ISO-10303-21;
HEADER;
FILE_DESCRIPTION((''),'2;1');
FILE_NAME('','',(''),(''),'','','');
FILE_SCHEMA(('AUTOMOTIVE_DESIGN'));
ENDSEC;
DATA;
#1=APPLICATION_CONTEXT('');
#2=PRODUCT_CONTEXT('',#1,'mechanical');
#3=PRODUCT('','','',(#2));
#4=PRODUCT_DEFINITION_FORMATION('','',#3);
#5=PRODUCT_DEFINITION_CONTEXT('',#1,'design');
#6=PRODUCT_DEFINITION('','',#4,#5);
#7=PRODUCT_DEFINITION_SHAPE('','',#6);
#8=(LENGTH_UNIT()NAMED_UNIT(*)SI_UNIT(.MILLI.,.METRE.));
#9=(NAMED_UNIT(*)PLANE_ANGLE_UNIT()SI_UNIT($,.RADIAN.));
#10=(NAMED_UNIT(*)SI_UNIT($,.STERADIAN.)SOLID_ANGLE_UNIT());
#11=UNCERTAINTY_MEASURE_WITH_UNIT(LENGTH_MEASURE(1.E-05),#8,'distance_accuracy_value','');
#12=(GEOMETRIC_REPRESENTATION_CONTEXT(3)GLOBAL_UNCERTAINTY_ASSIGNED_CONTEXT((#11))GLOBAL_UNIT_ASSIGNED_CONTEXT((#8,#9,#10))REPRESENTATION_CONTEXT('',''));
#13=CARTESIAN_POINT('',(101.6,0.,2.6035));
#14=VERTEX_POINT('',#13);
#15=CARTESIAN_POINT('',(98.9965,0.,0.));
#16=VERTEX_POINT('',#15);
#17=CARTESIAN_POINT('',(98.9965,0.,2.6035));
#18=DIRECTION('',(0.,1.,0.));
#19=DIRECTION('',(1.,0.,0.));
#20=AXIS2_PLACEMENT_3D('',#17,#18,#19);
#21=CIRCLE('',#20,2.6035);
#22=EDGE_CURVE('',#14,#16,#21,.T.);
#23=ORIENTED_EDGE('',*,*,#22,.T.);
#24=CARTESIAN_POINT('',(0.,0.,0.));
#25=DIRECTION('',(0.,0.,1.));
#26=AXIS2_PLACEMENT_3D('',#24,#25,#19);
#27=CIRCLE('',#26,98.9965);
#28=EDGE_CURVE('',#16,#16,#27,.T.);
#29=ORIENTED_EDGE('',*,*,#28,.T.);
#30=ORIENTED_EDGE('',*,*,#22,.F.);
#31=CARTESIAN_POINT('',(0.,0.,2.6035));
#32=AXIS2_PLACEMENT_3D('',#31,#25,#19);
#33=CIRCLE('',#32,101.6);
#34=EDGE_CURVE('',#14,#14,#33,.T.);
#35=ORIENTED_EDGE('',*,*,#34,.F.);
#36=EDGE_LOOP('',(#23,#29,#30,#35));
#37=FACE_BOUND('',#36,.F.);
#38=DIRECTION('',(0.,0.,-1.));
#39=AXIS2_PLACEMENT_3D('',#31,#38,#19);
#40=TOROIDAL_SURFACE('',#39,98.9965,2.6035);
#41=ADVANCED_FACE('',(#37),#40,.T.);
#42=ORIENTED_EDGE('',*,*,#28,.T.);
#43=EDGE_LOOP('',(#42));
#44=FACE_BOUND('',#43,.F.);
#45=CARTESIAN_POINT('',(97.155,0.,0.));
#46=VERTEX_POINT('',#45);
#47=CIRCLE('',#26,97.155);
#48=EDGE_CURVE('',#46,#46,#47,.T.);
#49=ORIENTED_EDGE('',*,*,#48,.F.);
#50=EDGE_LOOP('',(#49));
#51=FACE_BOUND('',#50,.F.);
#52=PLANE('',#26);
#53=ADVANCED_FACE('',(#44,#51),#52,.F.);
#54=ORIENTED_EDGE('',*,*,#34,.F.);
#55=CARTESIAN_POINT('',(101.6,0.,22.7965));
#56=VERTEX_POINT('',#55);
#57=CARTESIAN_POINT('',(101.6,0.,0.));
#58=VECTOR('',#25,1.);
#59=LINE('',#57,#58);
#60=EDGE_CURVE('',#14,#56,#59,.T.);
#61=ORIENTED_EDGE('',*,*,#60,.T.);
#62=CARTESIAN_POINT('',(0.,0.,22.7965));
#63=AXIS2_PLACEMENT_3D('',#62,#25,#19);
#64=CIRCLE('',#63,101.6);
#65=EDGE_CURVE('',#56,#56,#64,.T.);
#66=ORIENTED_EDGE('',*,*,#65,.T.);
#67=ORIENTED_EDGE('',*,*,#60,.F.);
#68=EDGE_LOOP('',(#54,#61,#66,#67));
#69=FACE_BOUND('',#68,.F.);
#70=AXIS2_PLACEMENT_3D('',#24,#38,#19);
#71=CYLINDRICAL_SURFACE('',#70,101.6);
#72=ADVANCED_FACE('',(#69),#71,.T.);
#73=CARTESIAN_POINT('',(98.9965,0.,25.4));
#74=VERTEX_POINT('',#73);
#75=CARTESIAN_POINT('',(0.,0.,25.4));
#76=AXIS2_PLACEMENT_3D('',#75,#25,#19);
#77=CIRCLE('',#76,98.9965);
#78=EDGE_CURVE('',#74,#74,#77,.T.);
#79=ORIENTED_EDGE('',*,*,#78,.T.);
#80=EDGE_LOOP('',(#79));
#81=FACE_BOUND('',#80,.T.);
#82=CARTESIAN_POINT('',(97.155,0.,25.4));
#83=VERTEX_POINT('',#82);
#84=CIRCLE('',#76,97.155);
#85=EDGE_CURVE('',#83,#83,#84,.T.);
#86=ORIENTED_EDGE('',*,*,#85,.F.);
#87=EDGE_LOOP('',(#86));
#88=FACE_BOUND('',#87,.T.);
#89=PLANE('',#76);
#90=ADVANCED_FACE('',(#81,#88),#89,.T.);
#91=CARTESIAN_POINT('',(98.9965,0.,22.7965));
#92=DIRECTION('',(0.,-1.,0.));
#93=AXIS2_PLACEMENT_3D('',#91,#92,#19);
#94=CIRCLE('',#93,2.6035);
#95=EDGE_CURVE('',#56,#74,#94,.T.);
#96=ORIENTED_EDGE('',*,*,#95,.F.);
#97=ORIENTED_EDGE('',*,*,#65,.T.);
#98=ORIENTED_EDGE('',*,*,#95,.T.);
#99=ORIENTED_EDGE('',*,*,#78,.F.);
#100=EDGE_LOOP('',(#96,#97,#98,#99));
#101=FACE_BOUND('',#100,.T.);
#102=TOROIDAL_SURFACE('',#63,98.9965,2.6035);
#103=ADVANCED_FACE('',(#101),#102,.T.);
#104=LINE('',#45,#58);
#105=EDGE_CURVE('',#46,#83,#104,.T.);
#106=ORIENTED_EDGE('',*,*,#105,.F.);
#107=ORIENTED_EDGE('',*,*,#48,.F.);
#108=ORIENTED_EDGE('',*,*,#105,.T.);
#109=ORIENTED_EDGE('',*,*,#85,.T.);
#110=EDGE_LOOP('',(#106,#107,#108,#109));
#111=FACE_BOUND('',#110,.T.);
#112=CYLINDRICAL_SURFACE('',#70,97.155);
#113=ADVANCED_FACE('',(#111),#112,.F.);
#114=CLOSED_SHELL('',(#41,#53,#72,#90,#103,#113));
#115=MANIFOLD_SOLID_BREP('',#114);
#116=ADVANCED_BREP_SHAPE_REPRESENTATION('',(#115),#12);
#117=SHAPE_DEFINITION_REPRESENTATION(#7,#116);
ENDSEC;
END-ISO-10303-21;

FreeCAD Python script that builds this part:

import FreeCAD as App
import Part
import Sketcher

V = App.Vector
Q = App.Units.Quantity


def edges_at(feature, points):
    """Names of the edges that pass closest to the given points."""
    edges = feature.Shape.Edges
    near = lambda p: min(range(len(edges)), key=lambda i: edges[i].distToShape(Part.Vertex(*p))[0])
    return sorted({f"Edge{near(p) + 1}" for p in points})

doc = App.newDocument("Part")
params = doc.addObject("Spreadsheet::Sheet", "Params")
for row, (alias, value) in enumerate([
    ("sketch1_diameter", "8 in"),
    ("sketch1_diameter2", "7.65 in"),
    ("pad1_length", "1 in"),
    ("fillet_radius", "0.1025 in"),
], start=1):
    params.set(f"A{row}", alias)
    params.set(f"B{row}", "=" + value)
    params.setAlias(f"B{row}", alias)

body = doc.addObject("PartDesign::Body", "Body")

sketch1 = doc.addObject("Sketcher::SketchObject", "Sketch")
body.addObject(sketch1)
sketch1.AttachmentSupport = (doc.XY_Plane, [""])
sketch1.MapMode = "FlatFace"
sketch1.addGeometry(Part.Circle(V(0, 0, 0), V(0, 0, 1), 102), False)
sketch1.addGeometry(Part.Circle(V(0, 0, 0), V(0, 0, 1), 97), False)
sketch1.addConstraint(Sketcher.Constraint("Coincident", 0, 3, -1, 1))
sketch1.addConstraint(Sketcher.Constraint("Coincident", 1, 3, -1, 1))
sketch1.addConstraint(Sketcher.Constraint("Diameter", 0, Q("8 in")))
sketch1.addConstraint(Sketcher.Constraint("Diameter", 1, Q("7.65 in")))
sketch1.setExpression("Constraints[2]", "Params.sketch1_diameter")
sketch1.setExpression("Constraints[3]", "Params.sketch1_diameter2")
pad1 = doc.addObject("PartDesign::Pad", "Pad")
body.addObject(pad1)
pad1.Profile = sketch1
pad1.setExpression("Length", "Params.pad1_length")
doc.recompute()

fillet = doc.addObject("PartDesign::Fillet", "Fillet")
body.addObject(fillet)
fillet.Base = (pad1, edges_at(pad1, [(-101.6, 0, 25.4), (-101.6, 0, 0)]))
fillet.setExpression("Radius", "Params.fillet_radius")

doc.recompute()
